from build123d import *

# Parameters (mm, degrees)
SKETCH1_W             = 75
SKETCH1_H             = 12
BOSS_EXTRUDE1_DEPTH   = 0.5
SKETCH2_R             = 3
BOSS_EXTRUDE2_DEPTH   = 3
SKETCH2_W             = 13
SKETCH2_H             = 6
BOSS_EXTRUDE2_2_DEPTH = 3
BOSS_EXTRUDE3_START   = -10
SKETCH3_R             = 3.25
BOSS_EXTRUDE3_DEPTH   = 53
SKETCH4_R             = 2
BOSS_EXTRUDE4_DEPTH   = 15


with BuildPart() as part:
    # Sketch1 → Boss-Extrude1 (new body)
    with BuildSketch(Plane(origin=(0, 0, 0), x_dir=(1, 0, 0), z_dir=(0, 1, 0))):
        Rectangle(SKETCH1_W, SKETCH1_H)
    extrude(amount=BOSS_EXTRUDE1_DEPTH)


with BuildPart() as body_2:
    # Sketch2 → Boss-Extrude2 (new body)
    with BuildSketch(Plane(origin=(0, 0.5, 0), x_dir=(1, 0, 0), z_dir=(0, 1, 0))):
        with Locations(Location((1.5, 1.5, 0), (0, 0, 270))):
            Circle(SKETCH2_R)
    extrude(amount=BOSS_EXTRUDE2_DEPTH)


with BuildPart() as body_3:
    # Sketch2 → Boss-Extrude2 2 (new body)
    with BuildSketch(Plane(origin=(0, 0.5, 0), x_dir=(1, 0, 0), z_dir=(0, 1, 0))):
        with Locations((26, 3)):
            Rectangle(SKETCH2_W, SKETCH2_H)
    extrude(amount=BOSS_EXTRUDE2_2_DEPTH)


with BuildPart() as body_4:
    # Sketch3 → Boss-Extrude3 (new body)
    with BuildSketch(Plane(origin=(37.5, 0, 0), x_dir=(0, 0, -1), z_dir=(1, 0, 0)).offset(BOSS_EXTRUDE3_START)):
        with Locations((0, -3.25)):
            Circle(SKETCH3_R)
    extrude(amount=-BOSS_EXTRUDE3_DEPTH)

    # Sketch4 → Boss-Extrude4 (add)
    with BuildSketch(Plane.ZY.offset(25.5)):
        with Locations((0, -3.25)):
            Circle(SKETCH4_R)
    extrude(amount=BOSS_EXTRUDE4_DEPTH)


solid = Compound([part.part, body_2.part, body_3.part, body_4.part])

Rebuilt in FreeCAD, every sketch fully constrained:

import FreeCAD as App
import Part
import Sketcher

doc = App.newDocument("Part")
body = doc.addObject("PartDesign::Body", "Body")

# Sketch on XZ plane
sketch1 = body.newObject("Sketcher::SketchObject", "Sketch")
sketch1.AttachmentSupport = (doc.getObject("XZ_Plane"), [""])
sketch1.MapMode = "FlatFace"
sketch1.addGeometry(Part.LineSegment(App.Vector(-37.5, -6, 0), App.Vector(-37.5, 6, 0)), False)
sketch1.addGeometry(Part.LineSegment(App.Vector(-37.5, 6, 0), App.Vector(37.5, 6, 0)), False)
sketch1.addGeometry(Part.LineSegment(App.Vector(37.5, 6, 0), App.Vector(37.5, -6, 0)), False)
sketch1.addGeometry(Part.LineSegment(App.Vector(37.5, -6, 0), App.Vector(-37.5, -6, 0)), False)
sketch1.addConstraint(Sketcher.Constraint("Coincident", 0, 2, 1, 1))
sketch1.addConstraint(Sketcher.Constraint("Coincident", 1, 2, 2, 1))
sketch1.addConstraint(Sketcher.Constraint("Coincident", 2, 2, 3, 1))
sketch1.addConstraint(Sketcher.Constraint("Coincident", 3, 2, 0, 1))
sketch1.addConstraint(Sketcher.Constraint("Vertical", 0))
sketch1.addConstraint(Sketcher.Constraint("Horizontal", 1))
sketch1.addConstraint(Sketcher.Constraint("Vertical", 2))
sketch1.addConstraint(Sketcher.Constraint("Horizontal", 3))
sketch1.addConstraint(Sketcher.Constraint("Symmetric", 0, 2, 2, 2, -1, 1))
sketch1.addConstraint(Sketcher.Constraint("DistanceX", 1, 1, 1, 2, 75.0))
sketch1.addConstraint(Sketcher.Constraint("DistanceY", 0, 1, 0, 2, 12.0))
pad1 = body.newObject("PartDesign::Pad", "Pad")
pad1.Profile = sketch1
pad1.Length = 0.5
pad1.Reversed = True
body2 = doc.addObject("PartDesign::Body", "Body001")

# Sketch on XZ plane
sketch2 = body2.newObject("Sketcher::SketchObject", "Sketch001")
sketch2.AttachmentSupport = (doc.getObject("XZ_Plane001"), [""])
sketch2.MapMode = "FlatFace"
sketch2.AttachmentOffset = App.Placement(App.Vector(0, 0, -0.5), App.Rotation())
sketch2.addGeometry(Part.Circle(App.Vector(1.5, -1.5, 0), App.Vector(0, 0, 1), 3), False)
sketch2.addConstraint(Sketcher.Constraint("Diameter", 0, 6.0))
sketch2.addConstraint(Sketcher.Constraint("DistanceX", -1, 1, 0, 3, 1.5))
sketch2.addConstraint(Sketcher.Constraint("DistanceY", 0, 3, -1, 1, 1.5))
pad2 = body2.newObject("PartDesign::Pad", "Pad001")
pad2.Profile = sketch2
pad2.Length = 3
pad2.Reversed = True
body3 = doc.addObject("PartDesign::Body", "Body002")

# Sketch on XZ plane
sketch3 = body3.newObject("Sketcher::SketchObject", "Sketch002")
sketch3.AttachmentSupport = (doc.getObject("XZ_Plane002"), [""])
sketch3.MapMode = "FlatFace"
sketch3.AttachmentOffset = App.Placement(App.Vector(0, 0, -0.5), App.Rotation())
sketch3.addGeometry(Part.LineSegment(App.Vector(19.5, -6, 0), App.Vector(19.5, 0, 0)), False)
sketch3.addGeometry(Part.LineSegment(App.Vector(19.5, 0, 0), App.Vector(32.5, 0, 0)), False)
sketch3.addGeometry(Part.LineSegment(App.Vector(32.5, 0, 0), App.Vector(32.5, -6, 0)), False)
sketch3.addGeometry(Part.LineSegment(App.Vector(32.5, -6, 0), App.Vector(19.5, -6, 0)), False)
sketch3.addConstraint(Sketcher.Constraint("Coincident", 0, 2, 1, 1))
sketch3.addConstraint(Sketcher.Constraint("Coincident", 1, 2, 2, 1))
sketch3.addConstraint(Sketcher.Constraint("Coincident", 2, 2, 3, 1))
sketch3.addConstraint(Sketcher.Constraint("Coincident", 3, 2, 0, 1))
sketch3.addConstraint(Sketcher.Constraint("Vertical", 0))
sketch3.addConstraint(Sketcher.Constraint("Horizontal", 1))
sketch3.addConstraint(Sketcher.Constraint("Vertical", 2))
sketch3.addConstraint(Sketcher.Constraint("Horizontal", 3))
sketch3.addConstraint(Sketcher.Constraint("PointOnObject", 0, 2, -1))
sketch3.addConstraint(Sketcher.Constraint("DistanceX", 1, 1, 1, 2, 13.0))
sketch3.addConstraint(Sketcher.Constraint("DistanceY", 0, 1, 0, 2, 6.0))
sketch3.addConstraint(Sketcher.Constraint("DistanceX", -1, 1, 0, 2, 19.5))
pad3 = body3.newObject("PartDesign::Pad", "Pad002")
pad3.Profile = sketch3
pad3.Length = 3
pad3.Reversed = True
body4 = doc.addObject("PartDesign::Body", "Body003")

# Sketch on YZ plane
sketch4 = body4.newObject("Sketcher::SketchObject", "Sketch003")
sketch4.AttachmentSupport = (doc.getObject("YZ_Plane003"), [""])
sketch4.MapMode = "FlatFace"
sketch4.AttachmentOffset = App.Placement(App.Vector(0, 0, 27.5), App.Rotation())
sketch4.addGeometry(Part.Circle(App.Vector(-3.25, 0, 0), App.Vector(0, 0, 1), 3.25), False)
sketch4.addConstraint(Sketcher.Constraint("PointOnObject", 0, 3, -1))
sketch4.addConstraint(Sketcher.Constraint("Diameter", 0, 6.5))
sketch4.addConstraint(Sketcher.Constraint("DistanceX", 0, 3, -1, 1, 3.25))
pad4 = body4.newObject("PartDesign::Pad", "Pad003")
pad4.Profile = sketch4
pad4.Length = 53
pad4.Reversed = True

# Sketch on YZ plane
sketch5 = body4.newObject("Sketcher::SketchObject", "Sketch004")
sketch5.AttachmentSupport = (doc.getObject("YZ_Plane003"), [""])
sketch5.MapMode = "FlatFace"
sketch5.AttachmentOffset = App.Placement(App.Vector(0, 0, -25.5), App.Rotation())
sketch5.addGeometry(Part.Circle(App.Vector(-3.25, 0, 0), App.Vector(0, 0, 1), 2), False)
sketch5.addConstraint(Sketcher.Constraint("PointOnObject", 0, 3, -1))
sketch5.addConstraint(Sketcher.Constraint("Diameter", 0, 4.0))
sketch5.addConstraint(Sketcher.Constraint("DistanceX", 0, 3, -1, 1, 3.25))
pad5 = body4.newObject("PartDesign::Pad", "Pad004")
pad5.Profile = sketch5
pad5.Length = 15
pad5.Reversed = True

doc.recompute()
